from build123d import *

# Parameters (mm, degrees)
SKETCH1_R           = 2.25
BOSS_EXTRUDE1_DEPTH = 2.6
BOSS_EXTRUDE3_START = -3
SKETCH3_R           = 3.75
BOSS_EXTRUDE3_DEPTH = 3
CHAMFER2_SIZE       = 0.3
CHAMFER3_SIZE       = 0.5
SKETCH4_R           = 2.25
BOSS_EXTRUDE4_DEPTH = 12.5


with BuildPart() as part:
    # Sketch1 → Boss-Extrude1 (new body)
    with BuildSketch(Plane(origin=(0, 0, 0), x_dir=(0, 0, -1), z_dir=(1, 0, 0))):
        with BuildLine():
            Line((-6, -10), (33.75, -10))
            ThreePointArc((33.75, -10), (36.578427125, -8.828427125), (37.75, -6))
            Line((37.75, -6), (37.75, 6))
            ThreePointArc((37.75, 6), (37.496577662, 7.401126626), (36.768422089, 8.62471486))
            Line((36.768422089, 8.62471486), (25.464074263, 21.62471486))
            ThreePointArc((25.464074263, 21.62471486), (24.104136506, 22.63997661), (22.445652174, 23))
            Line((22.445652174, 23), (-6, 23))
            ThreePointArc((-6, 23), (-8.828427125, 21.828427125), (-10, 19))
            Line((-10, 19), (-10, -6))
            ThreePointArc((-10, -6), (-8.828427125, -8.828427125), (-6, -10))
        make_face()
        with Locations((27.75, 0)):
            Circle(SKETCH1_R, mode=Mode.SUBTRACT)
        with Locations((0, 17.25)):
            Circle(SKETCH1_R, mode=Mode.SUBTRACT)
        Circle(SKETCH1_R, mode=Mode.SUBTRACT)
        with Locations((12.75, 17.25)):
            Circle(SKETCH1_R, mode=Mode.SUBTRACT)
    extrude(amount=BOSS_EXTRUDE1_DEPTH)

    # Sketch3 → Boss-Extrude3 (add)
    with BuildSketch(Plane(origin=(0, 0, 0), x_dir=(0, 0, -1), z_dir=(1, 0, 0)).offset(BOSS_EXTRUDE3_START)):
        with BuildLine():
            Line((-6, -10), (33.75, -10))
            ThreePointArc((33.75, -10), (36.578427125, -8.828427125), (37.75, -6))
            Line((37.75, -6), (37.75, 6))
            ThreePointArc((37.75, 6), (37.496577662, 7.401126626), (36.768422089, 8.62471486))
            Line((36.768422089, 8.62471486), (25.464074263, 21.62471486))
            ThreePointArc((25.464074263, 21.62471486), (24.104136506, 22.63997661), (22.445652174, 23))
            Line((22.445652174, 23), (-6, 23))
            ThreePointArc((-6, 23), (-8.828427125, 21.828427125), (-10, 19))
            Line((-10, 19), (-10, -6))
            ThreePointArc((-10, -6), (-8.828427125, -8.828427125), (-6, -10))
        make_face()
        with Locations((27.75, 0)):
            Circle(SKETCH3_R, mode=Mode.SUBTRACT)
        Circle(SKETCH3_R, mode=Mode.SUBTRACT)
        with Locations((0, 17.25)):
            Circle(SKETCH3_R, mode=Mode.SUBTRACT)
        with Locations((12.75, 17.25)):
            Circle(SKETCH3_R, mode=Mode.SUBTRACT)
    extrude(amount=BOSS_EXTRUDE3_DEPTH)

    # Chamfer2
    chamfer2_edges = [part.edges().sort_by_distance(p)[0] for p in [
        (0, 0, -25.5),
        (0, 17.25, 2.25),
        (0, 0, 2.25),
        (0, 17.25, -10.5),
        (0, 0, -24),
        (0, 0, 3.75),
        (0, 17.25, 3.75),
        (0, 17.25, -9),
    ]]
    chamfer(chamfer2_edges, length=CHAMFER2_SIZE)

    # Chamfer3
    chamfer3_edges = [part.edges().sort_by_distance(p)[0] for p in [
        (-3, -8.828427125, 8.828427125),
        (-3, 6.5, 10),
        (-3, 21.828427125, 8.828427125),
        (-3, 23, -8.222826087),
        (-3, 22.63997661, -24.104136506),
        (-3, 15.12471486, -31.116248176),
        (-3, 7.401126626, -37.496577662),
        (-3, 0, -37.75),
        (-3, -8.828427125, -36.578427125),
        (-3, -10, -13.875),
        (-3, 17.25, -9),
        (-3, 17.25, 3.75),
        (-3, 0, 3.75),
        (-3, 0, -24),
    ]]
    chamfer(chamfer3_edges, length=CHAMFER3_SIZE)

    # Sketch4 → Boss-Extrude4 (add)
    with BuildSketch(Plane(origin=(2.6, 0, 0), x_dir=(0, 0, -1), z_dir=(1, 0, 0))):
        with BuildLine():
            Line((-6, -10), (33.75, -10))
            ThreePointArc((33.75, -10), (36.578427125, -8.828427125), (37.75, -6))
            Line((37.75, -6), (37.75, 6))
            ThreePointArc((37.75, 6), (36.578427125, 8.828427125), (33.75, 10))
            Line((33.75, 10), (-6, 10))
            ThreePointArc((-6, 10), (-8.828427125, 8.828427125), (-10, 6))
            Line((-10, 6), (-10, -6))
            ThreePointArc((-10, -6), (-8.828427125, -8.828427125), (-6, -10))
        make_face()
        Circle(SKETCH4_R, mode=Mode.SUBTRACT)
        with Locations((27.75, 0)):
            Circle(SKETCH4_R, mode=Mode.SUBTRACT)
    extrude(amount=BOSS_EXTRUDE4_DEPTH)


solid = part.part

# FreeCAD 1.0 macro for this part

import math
import FreeCAD as App
import Part
import Sketcher


def edges_at(feature, points):
    """Names of the edges that pass closest to the given points."""
    edges = feature.Shape.Edges
    near = lambda p: min(range(len(edges)), key=lambda i: edges[i].distToShape(Part.Vertex(*p))[0])
    return sorted({f"Edge{near(p) + 1}" for p in points})

doc = App.newDocument("Part")
params = doc.addObject("Spreadsheet::Sheet", "Params")
for row, (alias, value) in enumerate([
    ("sketch1_radius", "4 mm"),
    ("sketch1_diameter", "4.5 mm"),
    ("sketch1_width", "12 mm"),
    ("sketch1_width2", "25 mm"),
    ("sketch1_height", "39.75 mm"),
    ("pad1_length", "2.6 mm"),
    ("sketch2_radius", "4 mm"),
    ("sketch2_diameter", "7.5 mm"),
    ("sketch2_width", "12 mm"),
    ("sketch2_width2", "25 mm"),
    ("sketch2_height", "39.75 mm"),
    ("pad2_length", "3 mm"),
    ("chamfer_size", "0.3 mm"),
    ("chamfer2_size", "0.5 mm"),
    ("sketch3_radius", "4 mm"),
    ("sketch3_diameter", "4.5 mm"),
    ("sketch3_width", "12 mm"),
    ("sketch3_height", "39.75 mm"),
    ("pad3_length", "12.5 mm"),
], start=1):
    params.set(f"A{row}", alias)
    params.set(f"B{row}", "=" + value)
    params.setAlias(f"B{row}", alias)

body = doc.addObject("PartDesign::Body", "Body")

# Sketch on YZ plane
sketch1 = body.newObject("Sketcher::SketchObject", "Sketch")
sketch1.AttachmentSupport = (doc.getObject("YZ_Plane"), [""])
sketch1.MapMode = "FlatFace"
sketch1.addGeometry([
    Part.LineSegment(App.Vector(-10, 6, 0), App.Vector(-10, -33.8, 0)),  # 0
    Part.ArcOfCircle(Part.Circle(App.Vector(-6, -33.8, 0), App.Vector(0, 0, 1), 4), math.radians(180), math.radians(270)),  # 1
    Part.LineSegment(App.Vector(-6, -37.8, 0), App.Vector(6, -37.8, 0)),  # 2
    Part.ArcOfCircle(Part.Circle(App.Vector(6, -33.7, 0), App.Vector(0, 0, 1), 4), math.radians(-90), math.radians(-49)),  # 3
    Part.LineSegment(App.Vector(8.6, -36.8, 0), App.Vector(21.6, -25.5, 0)),  # 4
    Part.ArcOfCircle(Part.Circle(App.Vector(19, -22.4, 0), App.Vector(0, 0, 1), 4), math.radians(-49), math.radians(0)),  # 5
    Part.LineSegment(App.Vector(23, -22.4, 0), App.Vector(23, 6, 0)),  # 6
    Part.ArcOfCircle(Part.Circle(App.Vector(19, 6, 0), App.Vector(0, 0, 1), 4), math.radians(0), math.radians(90)),  # 7
    Part.LineSegment(App.Vector(19, 10, 0), App.Vector(-6, 10, 0)),  # 8
    Part.ArcOfCircle(Part.Circle(App.Vector(-6, 6, 0), App.Vector(0, 0, 1), 4), math.radians(90), math.radians(180)),  # 9
    Part.Circle(App.Vector(0, 0, 0), App.Vector(0, 0, 1), 2.2),  # 10
    Part.Circle(App.Vector(0, -27.8, 0), App.Vector(0, 0, 1), 2.2),  # 11
    Part.Circle(App.Vector(17.2, 0, 0), App.Vector(0, 0, 1), 2.2),  # 12
    Part.Circle(App.Vector(17.2, -12.8, 0), App.Vector(0, 0, 1), 2.2),  # 13
], False)
sketch1.addConstraint([
    Sketcher.Constraint("Tangent", 0, 2, 1, 1),
    Sketcher.Constraint("Tangent", 1, 2, 2, 1),
    Sketcher.Constraint("Tangent", 2, 2, 3, 1),
    Sketcher.Constraint("Tangent", 3, 2, 4, 1),
    Sketcher.Constraint("Tangent", 4, 2, 5, 1),
    Sketcher.Constraint("Tangent", 5, 2, 6, 1),
    Sketcher.Constraint("Tangent", 6, 2, 7, 1),
    Sketcher.Constraint("Tangent", 7, 2, 8, 1),
    Sketcher.Constraint("Tangent", 8, 2, 9, 1),
    Sketcher.Constraint("Tangent", 9, 2, 0, 1),
    Sketcher.Constraint("Vertical", 0),
    Sketcher.Constraint("Horizontal", 2),
    Sketcher.Constraint("Vertical", 6),
    Sketcher.Constraint("Horizontal", 8),
    Sketcher.Constraint("Coincident", 10, 3, -1, 1),
    Sketcher.Constraint("Equal", 1, 3),
    Sketcher.Constraint("Equal", 3, 5),
    Sketcher.Constraint("Equal", 5, 7),
    Sketcher.Constraint("Equal", 7, 9),
    Sketcher.Constraint("Equal", 10, 11),
    Sketcher.Constraint("Equal", 11, 12),
    Sketcher.Constraint("Equal", 12, 13),
    Sketcher.Constraint("PointOnObject", 11, 3, -2),
    Sketcher.Constraint("PointOnObject", 12, 3, -1),
    Sketcher.Constraint("Vertical", 12, 3, 13, 3),
    Sketcher.Constraint("Radius", 1, 4.0),
    Sketcher.Constraint("Diameter", 10, 4.5),
    Sketcher.Constraint("DistanceX", 2, 1, 2, 2, 12.0),
    Sketcher.Constraint("DistanceX", 8, 2, 8, 1, 25.0),
    Sketcher.Constraint("DistanceX", 1, 3, -1, 1, 6.0),
    Sketcher.Constraint("DistanceY", -1, 1, 7, 3, 6.0),
    Sketcher.Constraint("DistanceY", 3, 3, 11, 3, 6.0),
    Sketcher.Constraint("DistanceY", 11, 3, 13, 3, 15.0),
    Sketcher.Constraint("DistanceY", 0, 2, 0, 1, 39.75),
    Sketcher.Constraint("DistanceX", -1, 1, 12, 3, 17.25),
    Sketcher.Constraint("DistanceY", 6, 1, 6, 2, 28.445652),
])
sketch1.setExpression("Constraints[25]", "Params.sketch1_radius")
sketch1.setExpression("Constraints[26]", "Params.sketch1_diameter")
sketch1.setExpression("Constraints[27]", "Params.sketch1_width")
sketch1.setExpression("Constraints[28]", "Params.sketch1_width2")
sketch1.setExpression("Constraints[33]", "Params.sketch1_height")
pad1 = body.newObject("PartDesign::Pad", "Pad")
pad1.Profile = sketch1
pad1.setExpression("Length", "Params.pad1_length")

# Sketch on YZ plane
sketch2 = body.newObject("Sketcher::SketchObject", "Sketch001")
sketch2.AttachmentSupport = (doc.getObject("YZ_Plane"), [""])
sketch2.MapMode = "FlatFace"
sketch2.AttachmentOffset = App.Placement(App.Vector(0, 0, -3), App.Rotation())
sketch2.addGeometry([
    Part.LineSegment(App.Vector(-10, 6, 0), App.Vector(-10, -33.8, 0)),  # 0
    Part.ArcOfCircle(Part.Circle(App.Vector(-6, -33.8, 0), App.Vector(0, 0, 1), 4), math.radians(180), math.radians(270)),  # 1
    Part.LineSegment(App.Vector(-6, -37.8, 0), App.Vector(6, -37.8, 0)),  # 2
    Part.ArcOfCircle(Part.Circle(App.Vector(6, -33.7, 0), App.Vector(0, 0, 1), 4), math.radians(-90), math.radians(-49)),  # 3
    Part.LineSegment(App.Vector(8.6, -36.8, 0), App.Vector(21.6, -25.5, 0)),  # 4
    Part.ArcOfCircle(Part.Circle(App.Vector(19, -22.4, 0), App.Vector(0, 0, 1), 4), math.radians(-49), math.radians(0)),  # 5
    Part.LineSegment(App.Vector(23, -22.4, 0), App.Vector(23, 6, 0)),  # 6
    Part.ArcOfCircle(Part.Circle(App.Vector(19, 6, 0), App.Vector(0, 0, 1), 4), math.radians(0), math.radians(90)),  # 7
    Part.LineSegment(App.Vector(19, 10, 0), App.Vector(-6, 10, 0)),  # 8
    Part.ArcOfCircle(Part.Circle(App.Vector(-6, 6, 0), App.Vector(0, 0, 1), 4), math.radians(90), math.radians(180)),  # 9
    Part.Circle(App.Vector(0, 0, 0), App.Vector(0, 0, 1), 3.8),  # 10
    Part.Circle(App.Vector(0, -27.8, 0), App.Vector(0, 0, 1), 3.8),  # 11
    Part.Circle(App.Vector(17.2, 0, 0), App.Vector(0, 0, 1), 3.8),  # 12
    Part.Circle(App.Vector(17.2, -12.8, 0), App.Vector(0, 0, 1), 3.8),  # 13
], False)
sketch2.addConstraint([
    Sketcher.Constraint("Tangent", 0, 2, 1, 1),
    Sketcher.Constraint("Tangent", 1, 2, 2, 1),
    Sketcher.Constraint("Tangent", 2, 2, 3, 1),
    Sketcher.Constraint("Tangent", 3, 2, 4, 1),
    Sketcher.Constraint("Tangent", 4, 2, 5, 1),
    Sketcher.Constraint("Tangent", 5, 2, 6, 1),
    Sketcher.Constraint("Tangent", 6, 2, 7, 1),
    Sketcher.Constraint("Tangent", 7, 2, 8, 1),
    Sketcher.Constraint("Tangent", 8, 2, 9, 1),
    Sketcher.Constraint("Tangent", 9, 2, 0, 1),
    Sketcher.Constraint("Vertical", 0),
    Sketcher.Constraint("Horizontal", 2),
    Sketcher.Constraint("Vertical", 6),
    Sketcher.Constraint("Horizontal", 8),
    Sketcher.Constraint("Coincident", 10, 3, -1, 1),
    Sketcher.Constraint("Equal", 1, 3),
    Sketcher.Constraint("Equal", 3, 5),
    Sketcher.Constraint("Equal", 5, 7),
    Sketcher.Constraint("Equal", 7, 9),
    Sketcher.Constraint("Equal", 10, 11),
    Sketcher.Constraint("Equal", 11, 12),
    Sketcher.Constraint("Equal", 12, 13),
    Sketcher.Constraint("PointOnObject", 11, 3, -2),
    Sketcher.Constraint("PointOnObject", 12, 3, -1),
    Sketcher.Constraint("Vertical", 12, 3, 13, 3),
    Sketcher.Constraint("Radius", 1, 4.0),
    Sketcher.Constraint("Diameter", 10, 7.5),
    Sketcher.Constraint("DistanceX", 2, 1, 2, 2, 12.0),
    Sketcher.Constraint("DistanceX", 8, 2, 8, 1, 25.0),
    Sketcher.Constraint("DistanceX", 1, 3, -1, 1, 6.0),
    Sketcher.Constraint("DistanceY", -1, 1, 7, 3, 6.0),
    Sketcher.Constraint("DistanceY", 3, 3, 11, 3, 6.0),
    Sketcher.Constraint("DistanceY", 11, 3, 13, 3, 15.0),
    Sketcher.Constraint("DistanceY", 0, 2, 0, 1, 39.75),
    Sketcher.Constraint("DistanceX", -1, 1, 12, 3, 17.25),
    Sketcher.Constraint("DistanceY", 6, 1, 6, 2, 28.445652),
])
sketch2.setExpression("Constraints[25]", "Params.sketch2_radius")
sketch2.setExpression("Constraints[26]", "Params.sketch2_diameter")
sketch2.setExpression("Constraints[27]", "Params.sketch2_width")
sketch2.setExpression("Constraints[28]", "Params.sketch2_width2")
sketch2.setExpression("Constraints[33]", "Params.sketch2_height")
pad2 = body.newObject("PartDesign::Pad", "Pad001")
pad2.Profile = sketch2
pad2.setExpression("Length", "Params.pad2_length")
doc.recompute()

chamfer = body.newObject("PartDesign::Chamfer", "Chamfer")
chamfer.Base = (pad2, edges_at(pad2, [
    (0, 0, -25.5),
    (0, 17.25, 2.25),
    (0, 0, 2.25),
    (0, 17.25, -10.5),
    (0, 0, -24),
    (0, 0, 3.75),
    (0, 17.25, 3.75),
    (0, 17.25, -9),
]))
chamfer.setExpression("Size", "Params.chamfer_size")
doc.recompute()

chamfer2 = body.newObject("PartDesign::Chamfer", "Chamfer001")
chamfer2.Base = (chamfer, edges_at(chamfer, [
    (-3, -8.828, 8.828),
    (-3, 6.5, 10),
    (-3, 21.828, 8.828),
    (-3, 23, -8.223),
    (-3, 22.64, -24.104),
    (-3, 15.125, -31.116),
    (-3, 7.401, -37.497),
    (-3, 0, -37.75),
    (-3, -8.828, -36.578),
    (-3, -10, -13.875),
    (-3, 17.25, -9),
    (-3, 17.25, 3.75),
    (-3, 0, 3.75),
    (-3, 0, -24),
]))
chamfer2.setExpression("Size", "Params.chamfer2_size")

# Sketch on YZ plane
sketch3 = body.newObject("Sketcher::SketchObject", "Sketch002")
sketch3.AttachmentSupport = (doc.getObject("YZ_Plane"), [""])
sketch3.MapMode = "FlatFace"
sketch3.AttachmentOffset = App.Placement(App.Vector(0, 0, 2.6), App.Rotation())
sketch3.addGeometry([
    Part.LineSegment(App.Vector(-10, 6, 0), App.Vector(-10, -33.8, 0)),  # 0
    Part.ArcOfCircle(Part.Circle(App.Vector(-6, -33.8, 0), App.Vector(0, 0, 1), 4), math.radians(180), math.radians(270)),  # 1
    Part.LineSegment(App.Vector(-6, -37.8, 0), App.Vector(6, -37.8, 0)),  # 2
    Part.ArcOfCircle(Part.Circle(App.Vector(6, -33.8, 0), App.Vector(0, 0, 1), 4), math.radians(-90), math.radians(0)),  # 3
    Part.LineSegment(App.Vector(10, -33.8, 0), App.Vector(10, 6, 0)),  # 4
    Part.ArcOfCircle(Part.Circle(App.Vector(6, 6, 0), App.Vector(0, 0, 1), 4), math.radians(0), math.radians(90)),  # 5
    Part.LineSegment(App.Vector(6, 10, 0), App.Vector(-6, 10, 0)),  # 6
    Part.ArcOfCircle(Part.Circle(App.Vector(-6, 6, 0), App.Vector(0, 0, 1), 4), math.radians(90), math.radians(180)),  # 7
    Part.Circle(App.Vector(0, 0, 0), App.Vector(0, 0, 1), 2.2),  # 8
    Part.Circle(App.Vector(0, -27.8, 0), App.Vector(0, 0, 1), 2.2),  # 9
], False)
sketch3.addConstraint([
    Sketcher.Constraint("Tangent", 0, 2, 1, 1),
    Sketcher.Constraint("Tangent", 1, 2, 2, 1),
    Sketcher.Constraint("Tangent", 2, 2, 3, 1),
    Sketcher.Constraint("Tangent", 3, 2, 4, 1),
    Sketcher.Constraint("Tangent", 4, 2, 5, 1),
    Sketcher.Constraint("Tangent", 5, 2, 6, 1),
    Sketcher.Constraint("Tangent", 6, 2, 7, 1),
    Sketcher.Constraint("Tangent", 7, 2, 0, 1),
    Sketcher.Constraint("Vertical", 0),
    Sketcher.Constraint("Horizontal", 2),
    Sketcher.Constraint("Vertical", 4),
    Sketcher.Constraint("Horizontal", 6),
    Sketcher.Constraint("Coincident", 8, 3, -1, 1),
    Sketcher.Constraint("Equal", 1, 3),
    Sketcher.Constraint("Equal", 3, 5),
    Sketcher.Constraint("Equal", 5, 7),
    Sketcher.Constraint("Equal", 8, 9),
    Sketcher.Constraint("PointOnObject", 9, 3, -2),
    Sketcher.Constraint("Radius", 1, 4.0),
    Sketcher.Constraint("Diameter", 8, 4.5),
    Sketcher.Constraint("DistanceX", 2, 1, 2, 2, 12.0),
    Sketcher.Constraint("DistanceX", 1, 3, -1, 1, 6.0),
    Sketcher.Constraint("DistanceY", -1, 1, 5, 3, 6.0),
    Sketcher.Constraint("DistanceY", 1, 3, 9, 3, 6.0),
    Sketcher.Constraint("DistanceY", 0, 2, 0, 1, 39.75),
])
sketch3.setExpression("Constraints[18]", "Params.sketch3_radius")
sketch3.setExpression("Constraints[19]", "Params.sketch3_diameter")
sketch3.setExpression("Constraints[20]", "Params.sketch3_width")
sketch3.setExpression("Constraints[24]", "Params.sketch3_height")
pad3 = body.newObject("PartDesign::Pad", "Pad002")
pad3.Profile = sketch3
pad3.setExpression("Length", "Params.pad3_length")

doc.recompute()
